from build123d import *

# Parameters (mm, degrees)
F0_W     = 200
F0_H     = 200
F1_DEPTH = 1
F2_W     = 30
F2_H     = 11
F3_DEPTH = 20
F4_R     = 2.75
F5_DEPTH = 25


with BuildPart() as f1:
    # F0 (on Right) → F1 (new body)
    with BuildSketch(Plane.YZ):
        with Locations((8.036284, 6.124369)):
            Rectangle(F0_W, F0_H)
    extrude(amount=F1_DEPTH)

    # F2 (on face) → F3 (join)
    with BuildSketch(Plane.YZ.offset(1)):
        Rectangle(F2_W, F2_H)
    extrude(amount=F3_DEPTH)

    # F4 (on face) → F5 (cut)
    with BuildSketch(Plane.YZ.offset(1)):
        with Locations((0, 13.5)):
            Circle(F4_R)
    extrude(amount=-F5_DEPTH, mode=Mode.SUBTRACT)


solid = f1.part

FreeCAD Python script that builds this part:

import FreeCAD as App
import Part
import Sketcher
from FreeCAD import Vector


def add_polygon(sketch, points):
    """Adds a closed chain of lines whose ends are joined by coincident constraints."""
    first, n = sketch.GeometryCount, len(points)
    for a, b in zip(points, points[1:] + points[:1]):
        sketch.addGeometry(Part.LineSegment(App.Vector(*a, 0), App.Vector(*b, 0)), False)
    for i in range(n):
        sketch.addConstraint(Sketcher.Constraint("Coincident", first + i, 2, first + (i + 1) % n, 1))

doc = App.newDocument("Part")
params = doc.addObject("Spreadsheet::Sheet", "Params")
for row, (alias, value) in enumerate([
    ("sketch1_width", "200 mm"),
    ("pad1_length", "1 mm"),
    ("sketch2_width", "30 mm"),
    ("sketch2_height", "11 mm"),
    ("pad2_length", "20 mm"),
    ("sketch3_diameter", "5.5 mm"),
    ("pocket1_length", "25 mm"),
], start=1):
    params.set(f"A{row}", alias)
    params.set(f"B{row}", "=" + value)
    params.setAlias(f"B{row}", alias)

body = doc.addObject("PartDesign::Body", "Body")

sketch1 = body.newObject("Sketcher::SketchObject", "Sketch")
sketch1.AttachmentSupport = (doc.getObject("YZ_Plane"), [""])
sketch1.MapMode = "FlatFace"
add_polygon(sketch1, [(-92, 106), (-92, -94), (108, -94), (108, 106)])
sketch1.addConstraint(Sketcher.Constraint("Vertical", 0))
sketch1.addConstraint(Sketcher.Constraint("Horizontal", 1))
sketch1.addConstraint(Sketcher.Constraint("Vertical", 2))
sketch1.addConstraint(Sketcher.Constraint("Horizontal", 3))
sketch1.addConstraint(Sketcher.Constraint("Equal", 3, 0))
sketch1.addConstraint(Sketcher.Constraint("DistanceX", 1, 1, 1, 2, 200.0))
sketch1.addConstraint(Sketcher.Constraint("DistanceY", 0, 2, -1, 1, 93.875631))
sketch1.addConstraint(Sketcher.Constraint("DistanceX", 0, 2, -1, 1, 91.963716))
sketch1.setExpression("Constraints[9]", "Params.sketch1_width")
pad1 = body.newObject("PartDesign::Pad", "Pad")
pad1.Profile = sketch1
pad1.setExpression("Length", "Params.pad1_length")

sketch2 = body.newObject("Sketcher::SketchObject", "Sketch001")
sketch2.AttachmentSupport = (doc.getObject("YZ_Plane"), [""])
sketch2.MapMode = "FlatFace"
sketch2.AttachmentOffset = App.Placement(Vector(0, 0, 1), App.Rotation())
add_polygon(sketch2, [(-15, 6), (-15, -6), (15, -6), (15, 6)])
sketch2.addConstraint(Sketcher.Constraint("Vertical", 0))
sketch2.addConstraint(Sketcher.Constraint("Horizontal", 1))
sketch2.addConstraint(Sketcher.Constraint("Vertical", 2))
sketch2.addConstraint(Sketcher.Constraint("Horizontal", 3))
sketch2.addConstraint(Sketcher.Constraint("Symmetric", 0, 2, 2, 2, -1, 1))
sketch2.addConstraint(Sketcher.Constraint("DistanceX", 1, 1, 1, 2, 30.0))
sketch2.addConstraint(Sketcher.Constraint("DistanceY", 0, 2, 0, 1, 11.0))
sketch2.setExpression("Constraints[9]", "Params.sketch2_width")
sketch2.setExpression("Constraints[10]", "Params.sketch2_height")
pad2 = body.newObject("PartDesign::Pad", "Pad001")
pad2.Profile = sketch2
pad2.setExpression("Length", "Params.pad2_length")

sketch3 = body.newObject("Sketcher::SketchObject", "Sketch002")
sketch3.AttachmentSupport = (doc.getObject("YZ_Plane"), [""])
sketch3.MapMode = "FlatFace"
sketch3.AttachmentOffset = App.Placement(Vector(0, 0, 1), App.Rotation())
sketch3.addGeometry(Part.Circle(Vector(0, 13.5, 0), Vector(0, 0, 1), 2.8), False)
sketch3.addConstraint(Sketcher.Constraint("PointOnObject", 0, 3, -2))
sketch3.addConstraint(Sketcher.Constraint("Diameter", 0, 5.5))
sketch3.addConstraint(Sketcher.Constraint("DistanceY", -1, 1, 0, 3, 13.5))
sketch3.setExpression("Constraints[1]", "Params.sketch3_diameter")
pocket1 = body.newObject("PartDesign::Pocket", "Pocket")
pocket1.Profile = sketch3
pocket1.setExpression("Length", "Params.pocket1_length")

doc.recompute()
